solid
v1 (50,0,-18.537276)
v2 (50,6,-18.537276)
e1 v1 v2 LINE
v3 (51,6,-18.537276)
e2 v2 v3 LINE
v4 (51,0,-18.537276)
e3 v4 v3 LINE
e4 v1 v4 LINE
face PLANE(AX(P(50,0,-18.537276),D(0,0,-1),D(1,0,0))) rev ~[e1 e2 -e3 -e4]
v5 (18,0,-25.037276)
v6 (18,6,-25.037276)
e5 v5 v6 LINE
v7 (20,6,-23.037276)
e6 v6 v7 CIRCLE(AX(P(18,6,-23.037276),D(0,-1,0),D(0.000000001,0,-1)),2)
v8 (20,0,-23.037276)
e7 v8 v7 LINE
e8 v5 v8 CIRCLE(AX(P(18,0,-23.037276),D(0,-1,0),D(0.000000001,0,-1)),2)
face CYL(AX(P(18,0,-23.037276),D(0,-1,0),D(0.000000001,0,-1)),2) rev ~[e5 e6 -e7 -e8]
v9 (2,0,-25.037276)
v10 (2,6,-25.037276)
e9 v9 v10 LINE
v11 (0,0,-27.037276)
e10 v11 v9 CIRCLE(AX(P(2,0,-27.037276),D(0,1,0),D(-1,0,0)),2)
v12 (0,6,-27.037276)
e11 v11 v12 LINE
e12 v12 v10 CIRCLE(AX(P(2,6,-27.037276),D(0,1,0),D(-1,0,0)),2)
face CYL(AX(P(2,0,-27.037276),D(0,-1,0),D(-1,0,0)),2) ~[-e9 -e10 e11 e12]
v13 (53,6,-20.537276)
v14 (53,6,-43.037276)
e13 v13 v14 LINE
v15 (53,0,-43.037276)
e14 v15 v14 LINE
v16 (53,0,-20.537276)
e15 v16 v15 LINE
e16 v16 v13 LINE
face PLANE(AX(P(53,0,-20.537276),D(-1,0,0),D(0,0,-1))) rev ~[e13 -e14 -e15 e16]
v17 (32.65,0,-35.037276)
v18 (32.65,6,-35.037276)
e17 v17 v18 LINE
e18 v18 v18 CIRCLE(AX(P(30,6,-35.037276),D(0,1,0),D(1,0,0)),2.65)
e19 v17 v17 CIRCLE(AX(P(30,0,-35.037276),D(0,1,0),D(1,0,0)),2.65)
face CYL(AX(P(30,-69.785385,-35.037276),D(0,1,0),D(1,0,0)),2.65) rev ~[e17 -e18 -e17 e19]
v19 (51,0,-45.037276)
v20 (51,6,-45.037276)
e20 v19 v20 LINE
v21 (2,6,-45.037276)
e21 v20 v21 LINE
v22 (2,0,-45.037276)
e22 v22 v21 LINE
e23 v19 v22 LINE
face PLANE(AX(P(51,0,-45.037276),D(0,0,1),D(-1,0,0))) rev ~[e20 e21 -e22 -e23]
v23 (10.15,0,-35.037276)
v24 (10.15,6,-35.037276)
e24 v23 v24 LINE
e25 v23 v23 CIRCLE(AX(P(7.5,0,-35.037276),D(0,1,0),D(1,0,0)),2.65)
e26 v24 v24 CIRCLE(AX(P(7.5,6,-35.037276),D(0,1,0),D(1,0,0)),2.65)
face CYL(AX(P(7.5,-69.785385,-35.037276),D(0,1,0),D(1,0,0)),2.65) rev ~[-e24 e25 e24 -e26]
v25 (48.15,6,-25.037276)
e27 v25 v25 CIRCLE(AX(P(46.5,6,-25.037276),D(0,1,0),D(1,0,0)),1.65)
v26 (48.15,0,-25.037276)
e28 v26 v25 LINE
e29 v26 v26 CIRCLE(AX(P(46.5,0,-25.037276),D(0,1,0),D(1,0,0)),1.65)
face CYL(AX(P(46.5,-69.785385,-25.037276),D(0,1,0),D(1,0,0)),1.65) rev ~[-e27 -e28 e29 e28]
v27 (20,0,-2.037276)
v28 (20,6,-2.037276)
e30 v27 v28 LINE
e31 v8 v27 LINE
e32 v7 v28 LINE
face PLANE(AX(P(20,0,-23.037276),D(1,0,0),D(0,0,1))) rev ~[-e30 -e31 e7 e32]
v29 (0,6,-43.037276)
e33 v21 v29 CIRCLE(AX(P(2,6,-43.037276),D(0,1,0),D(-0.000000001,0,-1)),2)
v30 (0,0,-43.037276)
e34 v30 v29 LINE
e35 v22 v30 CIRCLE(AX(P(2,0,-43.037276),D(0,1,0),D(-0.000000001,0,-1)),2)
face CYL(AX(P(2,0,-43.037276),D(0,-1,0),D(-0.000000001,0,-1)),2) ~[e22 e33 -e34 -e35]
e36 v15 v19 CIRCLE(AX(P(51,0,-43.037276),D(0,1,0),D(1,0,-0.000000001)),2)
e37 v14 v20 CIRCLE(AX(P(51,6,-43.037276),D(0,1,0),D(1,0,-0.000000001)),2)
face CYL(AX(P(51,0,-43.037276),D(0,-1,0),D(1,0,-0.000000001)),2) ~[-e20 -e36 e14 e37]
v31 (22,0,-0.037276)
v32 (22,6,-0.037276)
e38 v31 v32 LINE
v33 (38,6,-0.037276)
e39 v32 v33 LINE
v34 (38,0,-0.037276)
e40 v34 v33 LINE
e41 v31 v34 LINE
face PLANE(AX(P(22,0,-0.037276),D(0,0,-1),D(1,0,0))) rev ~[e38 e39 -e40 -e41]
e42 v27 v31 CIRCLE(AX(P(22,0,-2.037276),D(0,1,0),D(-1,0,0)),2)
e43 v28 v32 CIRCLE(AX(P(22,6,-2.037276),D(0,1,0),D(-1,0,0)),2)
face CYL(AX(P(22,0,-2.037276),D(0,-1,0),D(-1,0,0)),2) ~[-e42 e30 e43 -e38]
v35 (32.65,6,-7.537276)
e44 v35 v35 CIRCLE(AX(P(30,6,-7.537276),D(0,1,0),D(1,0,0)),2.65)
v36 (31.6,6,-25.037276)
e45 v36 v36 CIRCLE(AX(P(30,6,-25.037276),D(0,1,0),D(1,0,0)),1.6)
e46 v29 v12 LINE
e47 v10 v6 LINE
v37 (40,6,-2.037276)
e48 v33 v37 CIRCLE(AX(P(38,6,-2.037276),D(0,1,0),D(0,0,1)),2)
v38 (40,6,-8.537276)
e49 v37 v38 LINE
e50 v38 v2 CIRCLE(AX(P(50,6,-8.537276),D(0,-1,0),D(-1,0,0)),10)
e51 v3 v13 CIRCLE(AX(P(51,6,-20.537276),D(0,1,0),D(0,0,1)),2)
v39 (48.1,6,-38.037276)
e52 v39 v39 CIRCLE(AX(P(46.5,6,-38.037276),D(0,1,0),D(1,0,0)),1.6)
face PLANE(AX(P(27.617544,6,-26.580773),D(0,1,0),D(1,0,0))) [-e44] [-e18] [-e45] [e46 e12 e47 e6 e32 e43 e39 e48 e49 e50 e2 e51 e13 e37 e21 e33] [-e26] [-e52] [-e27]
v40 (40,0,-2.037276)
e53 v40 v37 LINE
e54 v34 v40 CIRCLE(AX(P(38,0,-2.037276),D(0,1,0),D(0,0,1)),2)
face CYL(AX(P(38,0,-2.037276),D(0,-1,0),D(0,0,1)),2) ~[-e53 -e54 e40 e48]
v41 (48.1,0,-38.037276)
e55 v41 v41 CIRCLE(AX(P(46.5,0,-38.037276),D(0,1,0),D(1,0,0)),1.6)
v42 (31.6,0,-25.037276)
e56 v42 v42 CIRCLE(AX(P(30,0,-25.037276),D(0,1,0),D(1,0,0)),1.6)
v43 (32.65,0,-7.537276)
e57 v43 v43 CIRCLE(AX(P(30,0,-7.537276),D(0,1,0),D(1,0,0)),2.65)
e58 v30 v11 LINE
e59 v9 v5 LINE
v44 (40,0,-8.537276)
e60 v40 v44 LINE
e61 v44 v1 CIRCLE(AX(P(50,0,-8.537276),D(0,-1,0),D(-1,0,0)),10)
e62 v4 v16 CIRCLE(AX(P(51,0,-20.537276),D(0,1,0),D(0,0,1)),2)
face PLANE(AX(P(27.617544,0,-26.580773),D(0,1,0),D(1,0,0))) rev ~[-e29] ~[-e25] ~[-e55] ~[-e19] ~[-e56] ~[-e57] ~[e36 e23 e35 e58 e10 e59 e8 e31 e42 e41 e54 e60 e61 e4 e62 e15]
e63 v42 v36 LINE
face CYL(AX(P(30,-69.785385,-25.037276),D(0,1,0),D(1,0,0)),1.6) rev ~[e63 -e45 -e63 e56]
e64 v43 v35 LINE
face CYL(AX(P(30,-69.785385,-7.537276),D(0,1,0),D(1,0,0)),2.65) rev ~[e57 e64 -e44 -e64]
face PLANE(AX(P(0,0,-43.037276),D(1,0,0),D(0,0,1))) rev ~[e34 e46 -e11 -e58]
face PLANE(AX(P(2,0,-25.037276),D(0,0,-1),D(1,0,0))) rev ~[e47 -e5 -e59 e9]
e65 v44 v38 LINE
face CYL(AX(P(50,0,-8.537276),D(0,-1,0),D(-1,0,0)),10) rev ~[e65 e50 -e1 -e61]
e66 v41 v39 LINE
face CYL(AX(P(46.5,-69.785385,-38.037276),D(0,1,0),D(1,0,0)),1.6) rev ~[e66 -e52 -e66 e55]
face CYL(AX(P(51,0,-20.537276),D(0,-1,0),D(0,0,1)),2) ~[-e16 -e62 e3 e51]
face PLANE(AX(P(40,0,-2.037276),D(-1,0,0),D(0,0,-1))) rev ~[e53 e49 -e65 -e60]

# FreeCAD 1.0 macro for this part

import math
import FreeCAD as App
import Part
import Sketcher

V = App.Vector

doc = App.newDocument("Part")
params = doc.addObject("Spreadsheet::Sheet", "Params")
for row, (alias, value) in enumerate([
    ("sketch1_radius", "2 mm"),
    ("sketch1_radius2", "10 mm"),
    ("sketch1_width", "16 mm"),
    ("sketch1_width2", "1 mm"),
    ("sketch1_height", "21 mm"),
    ("pad1_length", "6 mm"),
    ("sketch2_diameter", "5.3 mm"),
    ("hole_diameter", "5.3 mm"),
    ("sketch3_diameter", "3.2 mm"),
    ("hole2_diameter", "3.2 mm"),
    ("sketch4_diameter", "3.3 mm"),
    ("hole3_diameter", "3.3 mm"),
], start=1):
    params.set(f"A{row}", alias)
    params.set(f"B{row}", "=" + value)
    params.setAlias(f"B{row}", alias)

body = doc.addObject("PartDesign::Body", "Body")

# Sketch on XZ plane
sketch1 = body.newObject("Sketcher::SketchObject", "Sketch")
sketch1.AttachmentSupport = (doc.getObject("XZ_Plane"), [""])
sketch1.MapMode = "FlatFace"
sketch1.addGeometry(Part.LineSegment(V(22, -0.037276, 0), V(38, -0.037276, 0)), False)
sketch1.addGeometry(Part.ArcOfCircle(Part.Circle(V(38, -2.037276, 0), V(0, 0, 1), 2), math.radians(0), math.radians(90)), False)
sketch1.addGeometry(Part.LineSegment(V(40, -2.037276, 0), V(40, -8.537276, 0)), False)
sketch1.addGeometry(Part.ArcOfCircle(Part.Circle(V(50, -8.537276, 0), V(0, 0, 1), 10), math.radians(180), math.radians(270)), False)
sketch1.addGeometry(Part.LineSegment(V(50, -18.537276, 0), V(51, -18.537276, 0)), False)
sketch1.addGeometry(Part.ArcOfCircle(Part.Circle(V(51, -20.537276, 0), V(0, 0, 1), 2), math.radians(0), math.radians(90)), False)
sketch1.addGeometry(Part.LineSegment(V(53, -20.537276, 0), V(53, -43.037276, 0)), False)
sketch1.addGeometry(Part.ArcOfCircle(Part.Circle(V(51, -43.037276, 0), V(0, 0, 1), 2), math.radians(-90), math.radians(0)), False)
sketch1.addGeometry(Part.LineSegment(V(51, -45.037276, 0), V(2, -45.037276, 0)), False)
sketch1.addGeometry(Part.ArcOfCircle(Part.Circle(V(2, -43.037276, 0), V(0, 0, 1), 2), math.radians(-180), math.radians(-90)), False)
sketch1.addGeometry(Part.LineSegment(V(0, -43.037276, 0), V(0, -27.037276, 0)), False)
sketch1.addGeometry(Part.ArcOfCircle(Part.Circle(V(2, -27.037276, 0), V(0, 0, 1), 2), math.radians(90), math.radians(180)), False)
sketch1.addGeometry(Part.LineSegment(V(2, -25.037276, 0), V(18, -25.037276, 0)), False)
sketch1.addGeometry(Part.ArcOfCircle(Part.Circle(V(18, -23.037276, 0), V(0, 0, 1), 2), math.radians(-90), math.radians(0)), False)
sketch1.addGeometry(Part.LineSegment(V(20, -23.037276, 0), V(20, -2.037276, 0)), False)
sketch1.addGeometry(Part.ArcOfCircle(Part.Circle(V(22, -2.037276, 0), V(0, 0, 1), 2), math.radians(90), math.radians(180)), False)
sketch1.addConstraint(Sketcher.Constraint("Tangent", 0, 2, 1, 2))
sketch1.addConstraint(Sketcher.Constraint("Tangent", 1, 1, 2, 1))
sketch1.addConstraint(Sketcher.Constraint("Tangent", 2, 2, 3, 1))
sketch1.addConstraint(Sketcher.Constraint("Tangent", 3, 2, 4, 1))
sketch1.addConstraint(Sketcher.Constraint("Tangent", 4, 2, 5, 2))
sketch1.addConstraint(Sketcher.Constraint("Tangent", 5, 1, 6, 1))
sketch1.addConstraint(Sketcher.Constraint("Tangent", 6, 2, 7, 2))
sketch1.addConstraint(Sketcher.Constraint("Tangent", 7, 1, 8, 1))
sketch1.addConstraint(Sketcher.Constraint("Tangent", 8, 2, 9, 2))
sketch1.addConstraint(Sketcher.Constraint("Tangent", 9, 1, 10, 1))
sketch1.addConstraint(Sketcher.Constraint("Tangent", 10, 2, 11, 2))
sketch1.addConstraint(Sketcher.Constraint("Tangent", 11, 1, 12, 1))
sketch1.addConstraint(Sketcher.Constraint("Tangent", 12, 2, 13, 1))
sketch1.addConstraint(Sketcher.Constraint("Tangent", 13, 2, 14, 1))
sketch1.addConstraint(Sketcher.Constraint("Tangent", 14, 2, 15, 2))
sketch1.addConstraint(Sketcher.Constraint("Tangent", 15, 1, 0, 1))
sketch1.addConstraint(Sketcher.Constraint("Horizontal", 0))
sketch1.addConstraint(Sketcher.Constraint("Vertical", 2))
sketch1.addConstraint(Sketcher.Constraint("Horizontal", 4))
sketch1.addConstraint(Sketcher.Constraint("Vertical", 6))
sketch1.addConstraint(Sketcher.Constraint("Horizontal", 8))
sketch1.addConstraint(Sketcher.Constraint("Vertical", 10))
sketch1.addConstraint(Sketcher.Constraint("Horizontal", 12))
sketch1.addConstraint(Sketcher.Constraint("Vertical", 14))
sketch1.addConstraint(Sketcher.Constraint("Equal", 1, 5))
sketch1.addConstraint(Sketcher.Constraint("Equal", 5, 7))
sketch1.addConstraint(Sketcher.Constraint("Equal", 7, 9))
sketch1.addConstraint(Sketcher.Constraint("Equal", 9, 11))
sketch1.addConstraint(Sketcher.Constraint("Equal", 11, 13))
sketch1.addConstraint(Sketcher.Constraint("Equal", 13, 15))
sketch1.addConstraint(Sketcher.Constraint("PointOnObject", 9, 1, -2))
sketch1.addConstraint(Sketcher.Constraint("Equal", 0, 12))
sketch1.addConstraint(Sketcher.Constraint("Equal", 12, 10))
sketch1.addConstraint(Sketcher.Constraint("Radius", 1, 2.0))
sketch1.addConstraint(Sketcher.Constraint("Radius", 3, 10.0))
sketch1.addConstraint(Sketcher.Constraint("DistanceX", 0, 1, 0, 2, 16.0))
sketch1.addConstraint(Sketcher.Constraint("DistanceX", 4, 1, 4, 2, 1.0))
sketch1.addConstraint(Sketcher.Constraint("DistanceY", 14, 1, 14, 2, 21.0))
sketch1.addConstraint(Sketcher.Constraint("DistanceY", 2, 2, 2, 1, 6.5))
sketch1.addConstraint(Sketcher.Constraint("DistanceY", 1, 3, -1, 1, 2.037276))
sketch1.setExpression("Constraints[33]", "Params.sketch1_radius")
sketch1.setExpression("Constraints[34]", "Params.sketch1_radius2")
sketch1.setExpression("Constraints[35]", "Params.sketch1_width")
sketch1.setExpression("Constraints[36]", "Params.sketch1_width2")
sketch1.setExpression("Constraints[37]", "Params.sketch1_height")
pad1 = body.newObject("PartDesign::Pad", "Pad")
pad1.Profile = sketch1
pad1.setExpression("Length", "Params.pad1_length")
pad1.Reversed = True

# Sketch on XZ plane
sketch2 = body.newObject("Sketcher::SketchObject", "Sketch001")
sketch2.AttachmentSupport = (doc.getObject("XZ_Plane"), [""])
sketch2.MapMode = "FlatFace"
sketch2.addGeometry(Part.Circle(V(7.5, -35.037276, 0), V(0, 0, 1), 2.65), False)
sketch2.addGeometry(Part.Circle(V(30, -35.037276, 0), V(0, 0, 1), 2.65), False)
sketch2.addGeometry(Part.Circle(V(30, -7.537276, 0), V(0, 0, 1), 2.65), False)
sketch2.addConstraint(Sketcher.Constraint("Equal", 0, 1))
sketch2.addConstraint(Sketcher.Constraint("Equal", 1, 2))
sketch2.addConstraint(Sketcher.Constraint("Horizontal", 0, 3, 1, 3))
sketch2.addConstraint(Sketcher.Constraint("Vertical", 1, 3, 2, 3))
sketch2.addConstraint(Sketcher.Constraint("Diameter", 0, 5.3))
sketch2.addConstraint(Sketcher.Constraint("DistanceX", -1, 1, 1, 3, 30.0))
sketch2.addConstraint(Sketcher.Constraint("DistanceX", -1, 1, 0, 3, 7.5))
sketch2.addConstraint(Sketcher.Constraint("DistanceY", 1, 3, 2, 3, 27.5))
sketch2.addConstraint(Sketcher.Constraint("DistanceY", 0, 3, -1, 1, 35.037276))
sketch2.setExpression("Constraints[4]", "Params.sketch2_diameter")
doc.recompute()
hole = body.newObject("PartDesign::Hole", "Hole")
hole.Profile = sketch2
hole.ThreadType = "None"
hole.setExpression("Diameter", "Params.hole_diameter")
hole.DepthType = "ThroughAll"

# Sketch on XZ plane
sketch3 = body.newObject("Sketcher::SketchObject", "Sketch002")
sketch3.AttachmentSupport = (doc.getObject("XZ_Plane"), [""])
sketch3.MapMode = "FlatFace"
sketch3.addGeometry(Part.Circle(V(30, -25.037276, 0), V(0, 0, 1), 1.6), False)
sketch3.addGeometry(Part.Circle(V(46.5, -38.037276, 0), V(0, 0, 1), 1.6), False)
sketch3.addConstraint(Sketcher.Constraint("Equal", 0, 1))
sketch3.addConstraint(Sketcher.Constraint("Diameter", 0, 3.2))
sketch3.addConstraint(Sketcher.Constraint("DistanceX", -1, 1, 0, 3, 30.0))
sketch3.addConstraint(Sketcher.Constraint("DistanceY", 1, 3, 0, 3, 13.0))
sketch3.addConstraint(Sketcher.Constraint("DistanceX", -1, 1, 1, 3, 46.5))
sketch3.addConstraint(Sketcher.Constraint("DistanceY", 0, 3, -1, 1, 25.037276))
sketch3.setExpression("Constraints[1]", "Params.sketch3_diameter")
doc.recompute()
hole2 = body.newObject("PartDesign::Hole", "Hole001")
hole2.Profile = sketch3
hole2.ThreadType = "None"
hole2.setExpression("Diameter", "Params.hole2_diameter")
hole2.DepthType = "ThroughAll"

# Sketch on XZ plane
sketch4 = body.newObject("Sketcher::SketchObject", "Sketch003")
sketch4.AttachmentSupport = (doc.getObject("XZ_Plane"), [""])
sketch4.MapMode = "FlatFace"
sketch4.addGeometry(Part.Circle(V(46.5, -25.037276, 0), V(0, 0, 1), 1.65), False)
sketch4.addConstraint(Sketcher.Constraint("Diameter", 0, 3.3))
sketch4.addConstraint(Sketcher.Constraint("DistanceX", -1, 1, 0, 3, 46.5))
sketch4.addConstraint(Sketcher.Constraint("DistanceY", 0, 3, -1, 1, 25.037276))
sketch4.setExpression("Constraints[0]", "Params.sketch4_diameter")
doc.recompute()
hole3 = body.newObject("PartDesign::Hole", "Hole002")
hole3.Profile = sketch4
hole3.ThreadType = "None"
hole3.setExpression("Diameter", "Params.hole3_diameter")
hole3.DepthType = "ThroughAll"

doc.recompute()
